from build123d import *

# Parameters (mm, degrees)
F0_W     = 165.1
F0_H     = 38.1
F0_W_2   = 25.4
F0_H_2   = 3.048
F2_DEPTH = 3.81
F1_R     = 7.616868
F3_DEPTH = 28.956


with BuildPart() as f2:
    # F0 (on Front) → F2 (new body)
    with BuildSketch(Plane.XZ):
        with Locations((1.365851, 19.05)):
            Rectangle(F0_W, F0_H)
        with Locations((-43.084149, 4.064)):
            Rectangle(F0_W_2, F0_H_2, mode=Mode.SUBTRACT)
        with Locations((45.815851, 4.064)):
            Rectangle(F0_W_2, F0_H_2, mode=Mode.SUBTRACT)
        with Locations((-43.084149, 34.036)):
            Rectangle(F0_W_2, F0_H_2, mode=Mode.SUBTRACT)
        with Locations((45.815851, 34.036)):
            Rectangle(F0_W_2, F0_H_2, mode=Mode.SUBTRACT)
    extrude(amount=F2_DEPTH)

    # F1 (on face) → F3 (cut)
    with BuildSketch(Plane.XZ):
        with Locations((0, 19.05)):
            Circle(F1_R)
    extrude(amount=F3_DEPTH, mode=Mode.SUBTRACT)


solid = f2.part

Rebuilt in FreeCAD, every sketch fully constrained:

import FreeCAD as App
import Part
import Sketcher
Q = App.Units.Quantity

doc = App.newDocument("Part")
body = doc.addObject("PartDesign::Body", "Body")

# Sketch on XZ plane
sketch1 = body.newObject("Sketcher::SketchObject", "Sketch")
sketch1.AttachmentSupport = (doc.getObject("XZ_Plane"), [""])
sketch1.MapMode = "FlatFace"
sketch1.addGeometry(Part.LineSegment(App.Vector(-81.2, 38.1, 0), App.Vector(-81.2, 0, 0)), False)
sketch1.addGeometry(Part.LineSegment(App.Vector(-81.2, 0, 0), App.Vector(83.9, 0, 0)), False)
sketch1.addGeometry(Part.LineSegment(App.Vector(83.9, 0, 0), App.Vector(83.9, 38.1, 0)), False)
sketch1.addGeometry(Part.LineSegment(App.Vector(83.9, 38.1, 0), App.Vector(-81.2, 38.1, 0)), False)
sketch1.addGeometry(Part.LineSegment(App.Vector(-30.4, 2.5, 0), App.Vector(-55.8, 2.5, 0)), False)
sketch1.addGeometry(Part.LineSegment(App.Vector(-55.8, 2.5, 0), App.Vector(-55.8, 5.6, 0)), False)
sketch1.addGeometry(Part.LineSegment(App.Vector(-55.8, 5.6, 0), App.Vector(-30.4, 5.6, 0)), False)
sketch1.addGeometry(Part.LineSegment(App.Vector(-30.4, 5.6, 0), App.Vector(-30.4, 2.5, 0)), False)
sketch1.addGeometry(Part.LineSegment(App.Vector(58.5, 2.5, 0), App.Vector(33.1, 2.5, 0)), False)
sketch1.addGeometry(Part.LineSegment(App.Vector(33.1, 2.5, 0), App.Vector(33.1, 5.6, 0)), False)
sketch1.addGeometry(Part.LineSegment(App.Vector(33.1, 5.6, 0), App.Vector(58.5, 5.6, 0)), False)
sketch1.addGeometry(Part.LineSegment(App.Vector(58.5, 5.6, 0), App.Vector(58.5, 2.5, 0)), False)
sketch1.addGeometry(Part.LineSegment(App.Vector(-30.4, 32.5, 0), App.Vector(-55.8, 32.5, 0)), False)
sketch1.addGeometry(Part.LineSegment(App.Vector(-55.8, 32.5, 0), App.Vector(-55.8, 35.6, 0)), False)
sketch1.addGeometry(Part.LineSegment(App.Vector(-55.8, 35.6, 0), App.Vector(-30.4, 35.6, 0)), False)
sketch1.addGeometry(Part.LineSegment(App.Vector(-30.4, 35.6, 0), App.Vector(-30.4, 32.5, 0)), False)
sketch1.addGeometry(Part.LineSegment(App.Vector(58.5, 32.5, 0), App.Vector(33.1, 32.5, 0)), False)
sketch1.addGeometry(Part.LineSegment(App.Vector(33.1, 32.5, 0), App.Vector(33.1, 35.6, 0)), False)
sketch1.addGeometry(Part.LineSegment(App.Vector(33.1, 35.6, 0), App.Vector(58.5, 35.6, 0)), False)
sketch1.addGeometry(Part.LineSegment(App.Vector(58.5, 35.6, 0), App.Vector(58.5, 32.5, 0)), False)
sketch1.addConstraint(Sketcher.Constraint("Coincident", 0, 2, 1, 1))
sketch1.addConstraint(Sketcher.Constraint("Coincident", 1, 2, 2, 1))
sketch1.addConstraint(Sketcher.Constraint("Coincident", 2, 2, 3, 1))
sketch1.addConstraint(Sketcher.Constraint("Coincident", 3, 2, 0, 1))
sketch1.addConstraint(Sketcher.Constraint("Coincident", 4, 2, 5, 1))
sketch1.addConstraint(Sketcher.Constraint("Coincident", 5, 2, 6, 1))
sketch1.addConstraint(Sketcher.Constraint("Coincident", 6, 2, 7, 1))
sketch1.addConstraint(Sketcher.Constraint("Coincident", 7, 2, 4, 1))
sketch1.addConstraint(Sketcher.Constraint("Coincident", 8, 2, 9, 1))
sketch1.addConstraint(Sketcher.Constraint("Coincident", 9, 2, 10, 1))
sketch1.addConstraint(Sketcher.Constraint("Coincident", 10, 2, 11, 1))
sketch1.addConstraint(Sketcher.Constraint("Coincident", 11, 2, 8, 1))
sketch1.addConstraint(Sketcher.Constraint("Coincident", 12, 2, 13, 1))
sketch1.addConstraint(Sketcher.Constraint("Coincident", 13, 2, 14, 1))
sketch1.addConstraint(Sketcher.Constraint("Coincident", 14, 2, 15, 1))
sketch1.addConstraint(Sketcher.Constraint("Coincident", 15, 2, 12, 1))
sketch1.addConstraint(Sketcher.Constraint("Coincident", 16, 2, 17, 1))
sketch1.addConstraint(Sketcher.Constraint("Coincident", 17, 2, 18, 1))
sketch1.addConstraint(Sketcher.Constraint("Coincident", 18, 2, 19, 1))
sketch1.addConstraint(Sketcher.Constraint("Coincident", 19, 2, 16, 1))
sketch1.addConstraint(Sketcher.Constraint("Vertical", 0))
sketch1.addConstraint(Sketcher.Constraint("Horizontal", 1))
sketch1.addConstraint(Sketcher.Constraint("Vertical", 2))
sketch1.addConstraint(Sketcher.Constraint("Horizontal", 3))
sketch1.addConstraint(Sketcher.Constraint("Horizontal", 4))
sketch1.addConstraint(Sketcher.Constraint("Vertical", 5))
sketch1.addConstraint(Sketcher.Constraint("Horizontal", 6))
sketch1.addConstraint(Sketcher.Constraint("Vertical", 7))
sketch1.addConstraint(Sketcher.Constraint("Horizontal", 8))
sketch1.addConstraint(Sketcher.Constraint("Vertical", 9))
sketch1.addConstraint(Sketcher.Constraint("Horizontal", 10))
sketch1.addConstraint(Sketcher.Constraint("Vertical", 11))
sketch1.addConstraint(Sketcher.Constraint("Horizontal", 12))
sketch1.addConstraint(Sketcher.Constraint("Vertical", 13))
sketch1.addConstraint(Sketcher.Constraint("Horizontal", 14))
sketch1.addConstraint(Sketcher.Constraint("Vertical", 15))
sketch1.addConstraint(Sketcher.Constraint("Horizontal", 16))
sketch1.addConstraint(Sketcher.Constraint("Vertical", 17))
sketch1.addConstraint(Sketcher.Constraint("Horizontal", 18))
sketch1.addConstraint(Sketcher.Constraint("Vertical", 19))
sketch1.addConstraint(Sketcher.Constraint("PointOnObject", 0, 2, -1))
sketch1.addConstraint(Sketcher.Constraint("Horizontal", 7, 2, 8, 2))
sketch1.addConstraint(Sketcher.Constraint("Horizontal", 6, 2, 9, 2))
sketch1.addConstraint(Sketcher.Constraint("Horizontal", 15, 2, 16, 2))
sketch1.addConstraint(Sketcher.Constraint("Horizontal", 14, 2, 17, 2))
sketch1.addConstraint(Sketcher.Constraint("Vertical", 5, 2, 12, 2))
sketch1.addConstraint(Sketcher.Constraint("Vertical", 7, 2, 14, 2))
sketch1.addConstraint(Sketcher.Constraint("Vertical", 9, 2, 16, 2))
sketch1.addConstraint(Sketcher.Constraint("Vertical", 11, 2, 18, 2))
sketch1.addConstraint(Sketcher.Constraint("Equal", 6, 8))
sketch1.addConstraint(Sketcher.Constraint("Equal", 11, 13))
sketch1.addConstraint(Sketcher.Constraint("DistanceX", 4, 2, 4, 1, Q("1 in")))
sketch1.addConstraint(Sketcher.Constraint("DistanceX", 1, 1, 1, 2, Q("6.5 in")))
sketch1.addConstraint(Sketcher.Constraint("DistanceY", 0, 2, 0, 1, Q("1.5 in")))
sketch1.addConstraint(Sketcher.Constraint("DistanceX", 0, 2, 4, 2, Q("1 in")))
sketch1.addConstraint(Sketcher.Constraint("DistanceX", 8, 2, 1, 2, Q("2 in")))
sketch1.addConstraint(Sketcher.Constraint("DistanceY", 5, 1, 5, 2, Q("0.12 in")))
sketch1.addConstraint(Sketcher.Constraint("DistanceY", -1, 1, 4, 2, Q("0.1 in")))
sketch1.addConstraint(Sketcher.Constraint("DistanceY", -1, 1, 13, 2, Q("1.4 in")))
sketch1.addConstraint(Sketcher.Constraint("DistanceX", 0, 2, -1, 1, Q("81.184149 mm")))
pad1 = body.newObject("PartDesign::Pad", "Pad")
pad1.Profile = sketch1
pad1.Length = Q("0.15 in")

# Sketch on XZ plane
sketch2 = body.newObject("Sketcher::SketchObject", "Sketch001")
sketch2.AttachmentSupport = (doc.getObject("XZ_Plane"), [""])
sketch2.MapMode = "FlatFace"
sketch2.addGeometry(Part.Circle(App.Vector(0, 19, 0), App.Vector(0, 0, 1), 8), False)
sketch2.addConstraint(Sketcher.Constraint("PointOnObject", 0, 3, -2))
sketch2.addConstraint(Sketcher.Constraint("DistanceY", -1, 1, 0, 3, Q("0.75 in")))
sketch2.addConstraint(Sketcher.Constraint("Diameter", 0, Q("15.233736 mm")))
pocket1 = body.newObject("PartDesign::Pocket", "Pocket")
pocket1.Profile = sketch2
pocket1.Length = Q("1.14 in")
pocket1.Reversed = True

doc.recompute()
